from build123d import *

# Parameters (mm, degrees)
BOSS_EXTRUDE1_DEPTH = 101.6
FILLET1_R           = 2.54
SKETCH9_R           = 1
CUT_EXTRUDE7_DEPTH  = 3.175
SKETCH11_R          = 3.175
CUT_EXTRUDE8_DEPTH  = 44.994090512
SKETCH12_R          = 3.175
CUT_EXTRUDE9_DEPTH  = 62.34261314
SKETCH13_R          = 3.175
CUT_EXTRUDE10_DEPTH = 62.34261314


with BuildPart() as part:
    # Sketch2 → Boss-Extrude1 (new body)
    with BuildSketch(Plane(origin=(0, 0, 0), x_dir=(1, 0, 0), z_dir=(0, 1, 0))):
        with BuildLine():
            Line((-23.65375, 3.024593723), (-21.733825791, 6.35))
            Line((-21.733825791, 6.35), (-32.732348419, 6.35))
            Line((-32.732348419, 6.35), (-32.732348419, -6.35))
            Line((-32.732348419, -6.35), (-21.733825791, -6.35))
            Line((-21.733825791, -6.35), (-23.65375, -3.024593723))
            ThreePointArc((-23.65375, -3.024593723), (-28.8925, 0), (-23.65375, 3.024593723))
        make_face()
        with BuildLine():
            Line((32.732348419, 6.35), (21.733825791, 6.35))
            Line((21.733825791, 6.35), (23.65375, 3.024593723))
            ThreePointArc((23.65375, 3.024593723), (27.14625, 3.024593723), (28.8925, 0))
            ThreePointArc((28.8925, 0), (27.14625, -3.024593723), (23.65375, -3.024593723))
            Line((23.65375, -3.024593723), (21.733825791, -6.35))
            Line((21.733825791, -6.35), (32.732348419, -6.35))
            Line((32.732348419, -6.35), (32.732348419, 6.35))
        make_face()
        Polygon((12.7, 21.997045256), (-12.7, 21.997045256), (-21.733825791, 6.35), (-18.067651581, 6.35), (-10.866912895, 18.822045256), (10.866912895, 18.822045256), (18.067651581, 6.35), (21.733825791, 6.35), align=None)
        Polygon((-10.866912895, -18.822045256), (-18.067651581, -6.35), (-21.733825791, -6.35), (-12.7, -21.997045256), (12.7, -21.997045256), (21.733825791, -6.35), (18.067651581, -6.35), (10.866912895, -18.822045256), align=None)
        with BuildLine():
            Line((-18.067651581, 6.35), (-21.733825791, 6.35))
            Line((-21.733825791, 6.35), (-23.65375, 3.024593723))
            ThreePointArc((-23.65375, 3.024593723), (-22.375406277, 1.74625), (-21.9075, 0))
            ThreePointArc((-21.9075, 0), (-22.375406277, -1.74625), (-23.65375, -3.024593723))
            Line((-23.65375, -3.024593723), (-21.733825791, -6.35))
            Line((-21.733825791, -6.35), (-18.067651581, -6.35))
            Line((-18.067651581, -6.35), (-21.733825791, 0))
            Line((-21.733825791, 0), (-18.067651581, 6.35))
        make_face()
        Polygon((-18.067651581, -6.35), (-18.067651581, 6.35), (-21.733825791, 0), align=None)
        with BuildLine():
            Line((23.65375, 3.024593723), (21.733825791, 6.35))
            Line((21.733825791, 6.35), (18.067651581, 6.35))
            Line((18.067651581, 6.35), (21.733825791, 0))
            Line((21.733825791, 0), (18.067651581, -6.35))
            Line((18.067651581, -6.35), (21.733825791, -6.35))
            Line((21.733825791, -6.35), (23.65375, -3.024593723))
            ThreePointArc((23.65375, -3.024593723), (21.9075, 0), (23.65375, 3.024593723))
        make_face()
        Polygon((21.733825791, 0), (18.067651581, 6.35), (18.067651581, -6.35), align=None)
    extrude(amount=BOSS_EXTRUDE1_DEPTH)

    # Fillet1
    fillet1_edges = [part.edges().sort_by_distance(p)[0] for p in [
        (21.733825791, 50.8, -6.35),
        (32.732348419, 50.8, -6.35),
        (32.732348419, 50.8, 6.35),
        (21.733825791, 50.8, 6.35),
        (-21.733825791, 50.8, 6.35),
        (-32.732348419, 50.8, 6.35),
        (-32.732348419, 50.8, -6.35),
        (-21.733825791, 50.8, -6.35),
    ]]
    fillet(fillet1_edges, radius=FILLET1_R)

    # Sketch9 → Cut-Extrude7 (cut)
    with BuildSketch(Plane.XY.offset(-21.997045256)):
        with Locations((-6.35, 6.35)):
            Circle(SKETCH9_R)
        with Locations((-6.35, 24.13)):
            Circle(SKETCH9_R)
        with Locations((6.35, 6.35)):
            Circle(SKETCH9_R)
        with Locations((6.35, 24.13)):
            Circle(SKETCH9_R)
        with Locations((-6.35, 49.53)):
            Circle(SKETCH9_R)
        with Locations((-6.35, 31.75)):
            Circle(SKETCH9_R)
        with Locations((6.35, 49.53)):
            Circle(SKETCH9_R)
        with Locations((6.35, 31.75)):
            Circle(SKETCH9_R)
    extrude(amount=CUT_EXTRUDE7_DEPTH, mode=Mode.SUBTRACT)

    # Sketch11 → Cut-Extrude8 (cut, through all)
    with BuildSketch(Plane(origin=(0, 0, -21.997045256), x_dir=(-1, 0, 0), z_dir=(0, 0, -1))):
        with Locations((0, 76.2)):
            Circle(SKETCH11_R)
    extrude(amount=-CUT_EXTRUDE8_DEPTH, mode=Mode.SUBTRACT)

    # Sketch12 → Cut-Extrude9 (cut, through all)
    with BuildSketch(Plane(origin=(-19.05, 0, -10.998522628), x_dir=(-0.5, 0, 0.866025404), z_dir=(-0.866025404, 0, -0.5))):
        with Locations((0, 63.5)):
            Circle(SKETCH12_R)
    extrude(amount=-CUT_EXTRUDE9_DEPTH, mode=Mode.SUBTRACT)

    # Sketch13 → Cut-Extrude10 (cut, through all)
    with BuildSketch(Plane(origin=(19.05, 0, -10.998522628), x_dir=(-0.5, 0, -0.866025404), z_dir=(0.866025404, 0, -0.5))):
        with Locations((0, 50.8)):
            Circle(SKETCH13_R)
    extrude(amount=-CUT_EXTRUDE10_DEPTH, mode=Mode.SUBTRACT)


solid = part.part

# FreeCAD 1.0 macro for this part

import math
import FreeCAD as App
import Part
import Sketcher

V = App.Vector
Q = App.Units.Quantity


def edges_at(feature, points):
    """Names of the edges that pass closest to the given points."""
    edges = feature.Shape.Edges
    near = lambda p: min(range(len(edges)), key=lambda i: edges[i].distToShape(Part.Vertex(*p))[0])
    return sorted({f"Edge{near(p) + 1}" for p in points})

doc = App.newDocument("Part")
body = doc.addObject("PartDesign::Body", "Body")

sketch1 = doc.addObject("Sketcher::SketchObject", "Sketch")
body.addObject(sketch1)
sketch1.AttachmentSupport = (doc.XZ_Plane, [""])
sketch1.MapMode = "FlatFace"
sketch1.addGeometry(Part.LineSegment(V(-21.7, -6.3, 0), V(-32.7, -6.3, 0)), False)
sketch1.addGeometry(Part.LineSegment(V(-32.7, -6.3, 0), V(-32.7, 6.3, 0)), False)
sketch1.addGeometry(Part.LineSegment(V(-32.7, 6.3, 0), V(-21.7, 6.3, 0)), False)
sketch1.addGeometry(Part.LineSegment(V(-21.7, 6.3, 0), V(-12.7, 22, 0)), False)
sketch1.addGeometry(Part.LineSegment(V(-12.7, 22, 0), V(12.7, 22, 0)), False)
sketch1.addGeometry(Part.LineSegment(V(12.7, 22, 0), V(21.7, 6.3, 0)), False)
sketch1.addGeometry(Part.LineSegment(V(21.7, 6.3, 0), V(32.7, 6.3, 0)), False)
sketch1.addGeometry(Part.LineSegment(V(32.7, 6.3, 0), V(32.7, -6.3, 0)), False)
sketch1.addGeometry(Part.LineSegment(V(32.7, -6.3, 0), V(21.7, -6.3, 0)), False)
sketch1.addGeometry(Part.LineSegment(V(21.7, -6.3, 0), V(12.7, -22, 0)), False)
sketch1.addGeometry(Part.LineSegment(V(12.7, -22, 0), V(-12.7, -22, 0)), False)
sketch1.addGeometry(Part.LineSegment(V(-12.7, -22, 0), V(-21.7, -6.3, 0)), False)
sketch1.addGeometry(Part.LineSegment(V(18.1, 6.3, 0), V(10.9, 18.8, 0)), False)
sketch1.addGeometry(Part.LineSegment(V(10.9, 18.8, 0), V(-10.9, 18.8, 0)), False)
sketch1.addGeometry(Part.LineSegment(V(-10.9, 18.8, 0), V(-18.1, 6.3, 0)), False)
sketch1.addGeometry(Part.LineSegment(V(-18.1, 6.3, 0), V(-18.1, -6.3, 0)), False)
sketch1.addGeometry(Part.LineSegment(V(-18.1, -6.3, 0), V(-10.9, -18.8, 0)), False)
sketch1.addGeometry(Part.LineSegment(V(-10.9, -18.8, 0), V(10.9, -18.8, 0)), False)
sketch1.addGeometry(Part.LineSegment(V(10.9, -18.8, 0), V(18.1, -6.3, 0)), False)
sketch1.addGeometry(Part.LineSegment(V(18.1, -6.3, 0), V(18.1, 6.3, 0)), False)
sketch1.addGeometry(Part.ArcOfCircle(Part.Circle(V(-25.4, 0, 0), V(0, 0, 1), 3.5), math.radians(60), math.radians(300)), False)
sketch1.addGeometry(Part.ArcOfCircle(Part.Circle(V(-25.4, 0, 0), V(0, 0, 1), 3.5), math.radians(-60), math.radians(0)), False)
sketch1.addGeometry(Part.ArcOfCircle(Part.Circle(V(-25.4, 0, 0), V(0, 0, 1), 3.5), math.radians(0), math.radians(60)), False)
sketch1.addGeometry(Part.ArcOfCircle(Part.Circle(V(25.4, 0, 0), V(0, 0, 1), 3.5), math.radians(120), math.radians(240)), False)
sketch1.addGeometry(Part.ArcOfCircle(Part.Circle(V(25.4, 0, 0), V(0, 0, 1), 3.5), math.radians(-120), math.radians(0)), False)
sketch1.addGeometry(Part.ArcOfCircle(Part.Circle(V(25.4, 0, 0), V(0, 0, 1), 3.5), math.radians(0), math.radians(120)), False)
sketch1.addConstraint(Sketcher.Constraint("Coincident", 0, 2, 1, 1))
sketch1.addConstraint(Sketcher.Constraint("Coincident", 1, 2, 2, 1))
sketch1.addConstraint(Sketcher.Constraint("Coincident", 2, 2, 3, 1))
sketch1.addConstraint(Sketcher.Constraint("Coincident", 3, 2, 4, 1))
sketch1.addConstraint(Sketcher.Constraint("Coincident", 4, 2, 5, 1))
sketch1.addConstraint(Sketcher.Constraint("Coincident", 5, 2, 6, 1))
sketch1.addConstraint(Sketcher.Constraint("Coincident", 6, 2, 7, 1))
sketch1.addConstraint(Sketcher.Constraint("Coincident", 7, 2, 8, 1))
sketch1.addConstraint(Sketcher.Constraint("Coincident", 8, 2, 9, 1))
sketch1.addConstraint(Sketcher.Constraint("Coincident", 9, 2, 10, 1))
sketch1.addConstraint(Sketcher.Constraint("Coincident", 10, 2, 11, 1))
sketch1.addConstraint(Sketcher.Constraint("Coincident", 11, 2, 0, 1))
sketch1.addConstraint(Sketcher.Constraint("Coincident", 12, 2, 13, 1))
sketch1.addConstraint(Sketcher.Constraint("Coincident", 13, 2, 14, 1))
sketch1.addConstraint(Sketcher.Constraint("Coincident", 14, 2, 15, 1))
sketch1.addConstraint(Sketcher.Constraint("Coincident", 15, 2, 16, 1))
sketch1.addConstraint(Sketcher.Constraint("Coincident", 16, 2, 17, 1))
sketch1.addConstraint(Sketcher.Constraint("Coincident", 17, 2, 18, 1))
sketch1.addConstraint(Sketcher.Constraint("Coincident", 18, 2, 19, 1))
sketch1.addConstraint(Sketcher.Constraint("Coincident", 19, 2, 12, 1))
sketch1.addConstraint(Sketcher.Constraint("Tangent", 20, 2, 21, 1))
sketch1.addConstraint(Sketcher.Constraint("Tangent", 21, 2, 22, 1))
sketch1.addConstraint(Sketcher.Constraint("Tangent", 22, 2, 20, 1))
sketch1.addConstraint(Sketcher.Constraint("Tangent", 23, 2, 24, 1))
sketch1.addConstraint(Sketcher.Constraint("Tangent", 24, 2, 25, 1))
sketch1.addConstraint(Sketcher.Constraint("Tangent", 25, 2, 23, 1))
sketch1.addConstraint(Sketcher.Constraint("Horizontal", 0))
sketch1.addConstraint(Sketcher.Constraint("Vertical", 1))
sketch1.addConstraint(Sketcher.Constraint("Horizontal", 2))
sketch1.addConstraint(Sketcher.Constraint("Horizontal", 4))
sketch1.addConstraint(Sketcher.Constraint("Horizontal", 6))
sketch1.addConstraint(Sketcher.Constraint("Vertical", 7))
sketch1.addConstraint(Sketcher.Constraint("Horizontal", 8))
sketch1.addConstraint(Sketcher.Constraint("Horizontal", 10))
sketch1.addConstraint(Sketcher.Constraint("Horizontal", 13))
sketch1.addConstraint(Sketcher.Constraint("Vertical", 15))
sketch1.addConstraint(Sketcher.Constraint("Horizontal", 17))
sketch1.addConstraint(Sketcher.Constraint("Vertical", 19))
sketch1.addConstraint(Sketcher.Constraint("Equal", 22, 23))
sketch1.addConstraint(Sketcher.Constraint("Symmetric", 20, 3, 23, 3, -1, 1))
sketch1.addConstraint(Sketcher.Constraint("Symmetric", 0, 2, 6, 2, -1, 1))
sketch1.addConstraint(Sketcher.Constraint("Symmetric", 2, 2, 8, 2, -1, 1))
sketch1.addConstraint(Sketcher.Constraint("Symmetric", 3, 2, 9, 2, -1, 1))
sketch1.addConstraint(Sketcher.Constraint("Symmetric", 12, 2, 16, 2, -1, 1))
sketch1.addConstraint(Sketcher.Constraint("Symmetric", 14, 2, 18, 2, -1, 1))
sketch1.addConstraint(Sketcher.Constraint("Symmetric", 2, 2, 5, 2, -2))
sketch1.addConstraint(Sketcher.Constraint("Symmetric", 20, 2, 23, 2, -2))
sketch1.addConstraint(Sketcher.Constraint("PointOnObject", 21, 2, -1))
sketch1.addConstraint(Sketcher.Constraint("PointOnObject", 24, 2, -1))
sketch1.addConstraint(Sketcher.Constraint("Parallel", 5, 11))
sketch1.addConstraint(Sketcher.Constraint("Parallel", 11, 12))
sketch1.addConstraint(Sketcher.Constraint("Parallel", 9, 14))
sketch1.addConstraint(Sketcher.Constraint("Parallel", 12, 16))
sketch1.addConstraint(Sketcher.Constraint("Parallel", 14, 18))
sketch1.addConstraint(Sketcher.Constraint("Horizontal", 6, 2, 14, 2))
sketch1.addConstraint(Sketcher.Constraint("Horizontal", 11, 2, 15, 2))
sketch1.addConstraint(Sketcher.Constraint("Horizontal", 22, 2, 25, 2))
sketch1.addConstraint(Sketcher.Constraint("Vertical", 4, 2, 9, 2))
sketch1.addConstraint(Sketcher.Constraint("Vertical", 3, 2, 10, 2))
sketch1.addConstraint(Sketcher.Constraint("Vertical", 20, 2, 22, 2))
sketch1.addConstraint(Sketcher.Constraint("DistanceX", 4, 1, 4, 2, Q("1 in")))
sketch1.addConstraint(Sketcher.Constraint("DistanceY", 1, 1, 1, 2, Q("0.5 in")))
sketch1.addConstraint(Sketcher.Constraint("DistanceX", 20, 3, -1, 1, Q("1 in")))
sketch1.addConstraint(Sketcher.Constraint("Angle", 3, Q("60 deg")))
sketch1.addConstraint(Sketcher.Constraint("Radius", 20, Q("0.1375 in")))
sketch1.addConstraint(Sketcher.Constraint("DistanceY", 12, 2, 4, 2, Q("0.125 in")))
sketch1.addConstraint(Sketcher.Constraint("DistanceX", 20, 2, 15, 2, Q("5.586098 mm")))
sketch1.addConstraint(Sketcher.Constraint("Distance", 3, Q("18.067652 mm")))
sketch1.addConstraint(Sketcher.Constraint("DistanceX", 0, 2, 0, 1, Q("10.998523 mm")))
sketch1.addConstraint(Sketcher.Constraint("DistanceX", 13, 2, 13, 1, Q("21.733826 mm")))
pad1 = doc.addObject("PartDesign::Pad", "Pad")
body.addObject(pad1)
pad1.Profile = sketch1
pad1.Length = Q("4 in")
pad1.Reversed = True
doc.recompute()

fillet = doc.addObject("PartDesign::Fillet", "Fillet")
body.addObject(fillet)
fillet.Base = (pad1, edges_at(pad1, [
    (21.734, 50.8, -6.35),
    (32.732, 50.8, -6.35),
    (32.732, 50.8, 6.35),
    (21.734, 50.8, 6.35),
    (-21.734, 50.8, 6.35),
    (-32.732, 50.8, 6.35),
    (-32.732, 50.8, -6.35),
    (-21.734, 50.8, -6.35),
]))
fillet.Radius = Q("0.1 in")

sketch2 = doc.addObject("Sketcher::SketchObject", "Sketch001")
body.addObject(sketch2)
sketch2.AttachmentSupport = (doc.XY_Plane, [""])
sketch2.MapMode = "FlatFace"
sketch2.AttachmentOffset = App.Placement(V(0, 0, -21.997045), App.Rotation())
sketch2.addGeometry(Part.Circle(V(-6.3, 6.3, 0), V(0, 0, 1), 1), False)
sketch2.addGeometry(Part.Circle(V(-6.3, 24.1, 0), V(0, 0, 1), 1), False)
sketch2.addGeometry(Part.Circle(V(6.3, 6.3, 0), V(0, 0, 1), 1), False)
sketch2.addGeometry(Part.Circle(V(6.3, 24.1, 0), V(0, 0, 1), 1), False)
sketch2.addGeometry(Part.Circle(V(-6.3, 49.5, 0), V(0, 0, 1), 1), False)
sketch2.addGeometry(Part.Circle(V(-6.3, 31.8, 0), V(0, 0, 1), 1), False)
sketch2.addGeometry(Part.Circle(V(6.3, 49.5, 0), V(0, 0, 1), 1), False)
sketch2.addGeometry(Part.Circle(V(6.3, 31.8, 0), V(0, 0, 1), 1), False)
sketch2.addConstraint(Sketcher.Constraint("Equal", 0, 1))
sketch2.addConstraint(Sketcher.Constraint("Equal", 1, 2))
sketch2.addConstraint(Sketcher.Constraint("Equal", 2, 3))
sketch2.addConstraint(Sketcher.Constraint("Equal", 3, 4))
sketch2.addConstraint(Sketcher.Constraint("Equal", 4, 5))
sketch2.addConstraint(Sketcher.Constraint("Equal", 5, 6))
sketch2.addConstraint(Sketcher.Constraint("Equal", 6, 7))
sketch2.addConstraint(Sketcher.Constraint("Symmetric", 0, 3, 2, 3, -2))
sketch2.addConstraint(Sketcher.Constraint("Symmetric", 1, 3, 3, 3, -2))
sketch2.addConstraint(Sketcher.Constraint("Symmetric", 4, 3, 6, 3, -2))
sketch2.addConstraint(Sketcher.Constraint("Symmetric", 5, 3, 7, 3, -2))
sketch2.addConstraint(Sketcher.Constraint("Vertical", 0, 3, 1, 3))
sketch2.addConstraint(Sketcher.Constraint("Vertical", 1, 3, 4, 3))
sketch2.addConstraint(Sketcher.Constraint("Vertical", 4, 3, 5, 3))
sketch2.addConstraint(Sketcher.Constraint("DistanceY", 1, 3, 4, 3, Q("1 in")))
sketch2.addConstraint(Sketcher.Constraint("DistanceY", 0, 3, 5, 3, Q("1 in")))
sketch2.addConstraint(Sketcher.Constraint("DistanceY", 0, 3, 1, 3, Q("0.7 in")))
sketch2.addConstraint(Sketcher.Constraint("DistanceX", 0, 3, 2, 3, Q("0.5 in")))
sketch2.addConstraint(Sketcher.Constraint("Diameter", 0, Q("2 mm")))
sketch2.addConstraint(Sketcher.Constraint("DistanceY", -1, 1, 0, 3, Q("0.25 in")))
pocket1 = doc.addObject("PartDesign::Pocket", "Pocket")
body.addObject(pocket1)
pocket1.Profile = sketch2
pocket1.Length = Q("0.125 in")
pocket1.Reversed = True

sketch3 = doc.addObject("Sketcher::SketchObject", "Sketch002")
body.addObject(sketch3)
sketch3.AttachmentSupport = (doc.XY_Plane, [""])
sketch3.MapMode = "FlatFace"
sketch3.AttachmentOffset = App.Placement(V(0, 0, -21.997045), App.Rotation())
sketch3.addGeometry(Part.Circle(V(0, 76.2, 0), V(0, 0, 1), 3.2), False)
sketch3.addConstraint(Sketcher.Constraint("PointOnObject", 0, 3, -2))
sketch3.addConstraint(Sketcher.Constraint("Diameter", 0, Q("0.25 in")))
sketch3.addConstraint(Sketcher.Constraint("DistanceY", -1, 1, 0, 3, Q("3 in")))
pocket2 = doc.addObject("PartDesign::Pocket", "Pocket001")
body.addObject(pocket2)
pocket2.Profile = sketch3
pocket2.Type = "ThroughAll"
pocket2.Reversed = True

sketch4 = doc.addObject("Sketcher::SketchObject", "Sketch003")
body.addObject(sketch4)
sketch4.Placement = App.Placement(V(-19.05, 0, -10.998523), App.Rotation(V(-0.5, 0, 0.866025404), V(0, 1, 0), V(-0.866025404, 0, -0.5), "ZXY"))
sketch4.addGeometry(Part.Circle(V(0, 63.5, 0), V(0, 0, 1), 3.2), False)
sketch4.addConstraint(Sketcher.Constraint("PointOnObject", 0, 3, -2))
sketch4.addConstraint(Sketcher.Constraint("Diameter", 0, Q("0.25 in")))
sketch4.addConstraint(Sketcher.Constraint("DistanceY", -1, 1, 0, 3, Q("2.5 in")))
pocket3 = doc.addObject("PartDesign::Pocket", "Pocket002")
body.addObject(pocket3)
pocket3.Profile = sketch4
pocket3.Type = "ThroughAll"

sketch5 = doc.addObject("Sketcher::SketchObject", "Sketch004")
body.addObject(sketch5)
sketch5.Placement = App.Placement(V(19.05, 0, -10.998523), App.Rotation(V(-0.5, 0, -0.866025404), V(0, 1, 0), V(0.866025404, 0, -0.5), "ZXY"))
sketch5.addGeometry(Part.Circle(V(0, 50.8, 0), V(0, 0, 1), 3.2), False)
sketch5.addConstraint(Sketcher.Constraint("PointOnObject", 0, 3, -2))
sketch5.addConstraint(Sketcher.Constraint("Diameter", 0, Q("0.25 in")))
sketch5.addConstraint(Sketcher.Constraint("DistanceY", -1, 1, 0, 3, Q("2 in")))
pocket4 = doc.addObject("PartDesign::Pocket", "Pocket003")
body.addObject(pocket4)
pocket4.Profile = sketch5
pocket4.Type = "ThroughAll"

doc.recompute()
